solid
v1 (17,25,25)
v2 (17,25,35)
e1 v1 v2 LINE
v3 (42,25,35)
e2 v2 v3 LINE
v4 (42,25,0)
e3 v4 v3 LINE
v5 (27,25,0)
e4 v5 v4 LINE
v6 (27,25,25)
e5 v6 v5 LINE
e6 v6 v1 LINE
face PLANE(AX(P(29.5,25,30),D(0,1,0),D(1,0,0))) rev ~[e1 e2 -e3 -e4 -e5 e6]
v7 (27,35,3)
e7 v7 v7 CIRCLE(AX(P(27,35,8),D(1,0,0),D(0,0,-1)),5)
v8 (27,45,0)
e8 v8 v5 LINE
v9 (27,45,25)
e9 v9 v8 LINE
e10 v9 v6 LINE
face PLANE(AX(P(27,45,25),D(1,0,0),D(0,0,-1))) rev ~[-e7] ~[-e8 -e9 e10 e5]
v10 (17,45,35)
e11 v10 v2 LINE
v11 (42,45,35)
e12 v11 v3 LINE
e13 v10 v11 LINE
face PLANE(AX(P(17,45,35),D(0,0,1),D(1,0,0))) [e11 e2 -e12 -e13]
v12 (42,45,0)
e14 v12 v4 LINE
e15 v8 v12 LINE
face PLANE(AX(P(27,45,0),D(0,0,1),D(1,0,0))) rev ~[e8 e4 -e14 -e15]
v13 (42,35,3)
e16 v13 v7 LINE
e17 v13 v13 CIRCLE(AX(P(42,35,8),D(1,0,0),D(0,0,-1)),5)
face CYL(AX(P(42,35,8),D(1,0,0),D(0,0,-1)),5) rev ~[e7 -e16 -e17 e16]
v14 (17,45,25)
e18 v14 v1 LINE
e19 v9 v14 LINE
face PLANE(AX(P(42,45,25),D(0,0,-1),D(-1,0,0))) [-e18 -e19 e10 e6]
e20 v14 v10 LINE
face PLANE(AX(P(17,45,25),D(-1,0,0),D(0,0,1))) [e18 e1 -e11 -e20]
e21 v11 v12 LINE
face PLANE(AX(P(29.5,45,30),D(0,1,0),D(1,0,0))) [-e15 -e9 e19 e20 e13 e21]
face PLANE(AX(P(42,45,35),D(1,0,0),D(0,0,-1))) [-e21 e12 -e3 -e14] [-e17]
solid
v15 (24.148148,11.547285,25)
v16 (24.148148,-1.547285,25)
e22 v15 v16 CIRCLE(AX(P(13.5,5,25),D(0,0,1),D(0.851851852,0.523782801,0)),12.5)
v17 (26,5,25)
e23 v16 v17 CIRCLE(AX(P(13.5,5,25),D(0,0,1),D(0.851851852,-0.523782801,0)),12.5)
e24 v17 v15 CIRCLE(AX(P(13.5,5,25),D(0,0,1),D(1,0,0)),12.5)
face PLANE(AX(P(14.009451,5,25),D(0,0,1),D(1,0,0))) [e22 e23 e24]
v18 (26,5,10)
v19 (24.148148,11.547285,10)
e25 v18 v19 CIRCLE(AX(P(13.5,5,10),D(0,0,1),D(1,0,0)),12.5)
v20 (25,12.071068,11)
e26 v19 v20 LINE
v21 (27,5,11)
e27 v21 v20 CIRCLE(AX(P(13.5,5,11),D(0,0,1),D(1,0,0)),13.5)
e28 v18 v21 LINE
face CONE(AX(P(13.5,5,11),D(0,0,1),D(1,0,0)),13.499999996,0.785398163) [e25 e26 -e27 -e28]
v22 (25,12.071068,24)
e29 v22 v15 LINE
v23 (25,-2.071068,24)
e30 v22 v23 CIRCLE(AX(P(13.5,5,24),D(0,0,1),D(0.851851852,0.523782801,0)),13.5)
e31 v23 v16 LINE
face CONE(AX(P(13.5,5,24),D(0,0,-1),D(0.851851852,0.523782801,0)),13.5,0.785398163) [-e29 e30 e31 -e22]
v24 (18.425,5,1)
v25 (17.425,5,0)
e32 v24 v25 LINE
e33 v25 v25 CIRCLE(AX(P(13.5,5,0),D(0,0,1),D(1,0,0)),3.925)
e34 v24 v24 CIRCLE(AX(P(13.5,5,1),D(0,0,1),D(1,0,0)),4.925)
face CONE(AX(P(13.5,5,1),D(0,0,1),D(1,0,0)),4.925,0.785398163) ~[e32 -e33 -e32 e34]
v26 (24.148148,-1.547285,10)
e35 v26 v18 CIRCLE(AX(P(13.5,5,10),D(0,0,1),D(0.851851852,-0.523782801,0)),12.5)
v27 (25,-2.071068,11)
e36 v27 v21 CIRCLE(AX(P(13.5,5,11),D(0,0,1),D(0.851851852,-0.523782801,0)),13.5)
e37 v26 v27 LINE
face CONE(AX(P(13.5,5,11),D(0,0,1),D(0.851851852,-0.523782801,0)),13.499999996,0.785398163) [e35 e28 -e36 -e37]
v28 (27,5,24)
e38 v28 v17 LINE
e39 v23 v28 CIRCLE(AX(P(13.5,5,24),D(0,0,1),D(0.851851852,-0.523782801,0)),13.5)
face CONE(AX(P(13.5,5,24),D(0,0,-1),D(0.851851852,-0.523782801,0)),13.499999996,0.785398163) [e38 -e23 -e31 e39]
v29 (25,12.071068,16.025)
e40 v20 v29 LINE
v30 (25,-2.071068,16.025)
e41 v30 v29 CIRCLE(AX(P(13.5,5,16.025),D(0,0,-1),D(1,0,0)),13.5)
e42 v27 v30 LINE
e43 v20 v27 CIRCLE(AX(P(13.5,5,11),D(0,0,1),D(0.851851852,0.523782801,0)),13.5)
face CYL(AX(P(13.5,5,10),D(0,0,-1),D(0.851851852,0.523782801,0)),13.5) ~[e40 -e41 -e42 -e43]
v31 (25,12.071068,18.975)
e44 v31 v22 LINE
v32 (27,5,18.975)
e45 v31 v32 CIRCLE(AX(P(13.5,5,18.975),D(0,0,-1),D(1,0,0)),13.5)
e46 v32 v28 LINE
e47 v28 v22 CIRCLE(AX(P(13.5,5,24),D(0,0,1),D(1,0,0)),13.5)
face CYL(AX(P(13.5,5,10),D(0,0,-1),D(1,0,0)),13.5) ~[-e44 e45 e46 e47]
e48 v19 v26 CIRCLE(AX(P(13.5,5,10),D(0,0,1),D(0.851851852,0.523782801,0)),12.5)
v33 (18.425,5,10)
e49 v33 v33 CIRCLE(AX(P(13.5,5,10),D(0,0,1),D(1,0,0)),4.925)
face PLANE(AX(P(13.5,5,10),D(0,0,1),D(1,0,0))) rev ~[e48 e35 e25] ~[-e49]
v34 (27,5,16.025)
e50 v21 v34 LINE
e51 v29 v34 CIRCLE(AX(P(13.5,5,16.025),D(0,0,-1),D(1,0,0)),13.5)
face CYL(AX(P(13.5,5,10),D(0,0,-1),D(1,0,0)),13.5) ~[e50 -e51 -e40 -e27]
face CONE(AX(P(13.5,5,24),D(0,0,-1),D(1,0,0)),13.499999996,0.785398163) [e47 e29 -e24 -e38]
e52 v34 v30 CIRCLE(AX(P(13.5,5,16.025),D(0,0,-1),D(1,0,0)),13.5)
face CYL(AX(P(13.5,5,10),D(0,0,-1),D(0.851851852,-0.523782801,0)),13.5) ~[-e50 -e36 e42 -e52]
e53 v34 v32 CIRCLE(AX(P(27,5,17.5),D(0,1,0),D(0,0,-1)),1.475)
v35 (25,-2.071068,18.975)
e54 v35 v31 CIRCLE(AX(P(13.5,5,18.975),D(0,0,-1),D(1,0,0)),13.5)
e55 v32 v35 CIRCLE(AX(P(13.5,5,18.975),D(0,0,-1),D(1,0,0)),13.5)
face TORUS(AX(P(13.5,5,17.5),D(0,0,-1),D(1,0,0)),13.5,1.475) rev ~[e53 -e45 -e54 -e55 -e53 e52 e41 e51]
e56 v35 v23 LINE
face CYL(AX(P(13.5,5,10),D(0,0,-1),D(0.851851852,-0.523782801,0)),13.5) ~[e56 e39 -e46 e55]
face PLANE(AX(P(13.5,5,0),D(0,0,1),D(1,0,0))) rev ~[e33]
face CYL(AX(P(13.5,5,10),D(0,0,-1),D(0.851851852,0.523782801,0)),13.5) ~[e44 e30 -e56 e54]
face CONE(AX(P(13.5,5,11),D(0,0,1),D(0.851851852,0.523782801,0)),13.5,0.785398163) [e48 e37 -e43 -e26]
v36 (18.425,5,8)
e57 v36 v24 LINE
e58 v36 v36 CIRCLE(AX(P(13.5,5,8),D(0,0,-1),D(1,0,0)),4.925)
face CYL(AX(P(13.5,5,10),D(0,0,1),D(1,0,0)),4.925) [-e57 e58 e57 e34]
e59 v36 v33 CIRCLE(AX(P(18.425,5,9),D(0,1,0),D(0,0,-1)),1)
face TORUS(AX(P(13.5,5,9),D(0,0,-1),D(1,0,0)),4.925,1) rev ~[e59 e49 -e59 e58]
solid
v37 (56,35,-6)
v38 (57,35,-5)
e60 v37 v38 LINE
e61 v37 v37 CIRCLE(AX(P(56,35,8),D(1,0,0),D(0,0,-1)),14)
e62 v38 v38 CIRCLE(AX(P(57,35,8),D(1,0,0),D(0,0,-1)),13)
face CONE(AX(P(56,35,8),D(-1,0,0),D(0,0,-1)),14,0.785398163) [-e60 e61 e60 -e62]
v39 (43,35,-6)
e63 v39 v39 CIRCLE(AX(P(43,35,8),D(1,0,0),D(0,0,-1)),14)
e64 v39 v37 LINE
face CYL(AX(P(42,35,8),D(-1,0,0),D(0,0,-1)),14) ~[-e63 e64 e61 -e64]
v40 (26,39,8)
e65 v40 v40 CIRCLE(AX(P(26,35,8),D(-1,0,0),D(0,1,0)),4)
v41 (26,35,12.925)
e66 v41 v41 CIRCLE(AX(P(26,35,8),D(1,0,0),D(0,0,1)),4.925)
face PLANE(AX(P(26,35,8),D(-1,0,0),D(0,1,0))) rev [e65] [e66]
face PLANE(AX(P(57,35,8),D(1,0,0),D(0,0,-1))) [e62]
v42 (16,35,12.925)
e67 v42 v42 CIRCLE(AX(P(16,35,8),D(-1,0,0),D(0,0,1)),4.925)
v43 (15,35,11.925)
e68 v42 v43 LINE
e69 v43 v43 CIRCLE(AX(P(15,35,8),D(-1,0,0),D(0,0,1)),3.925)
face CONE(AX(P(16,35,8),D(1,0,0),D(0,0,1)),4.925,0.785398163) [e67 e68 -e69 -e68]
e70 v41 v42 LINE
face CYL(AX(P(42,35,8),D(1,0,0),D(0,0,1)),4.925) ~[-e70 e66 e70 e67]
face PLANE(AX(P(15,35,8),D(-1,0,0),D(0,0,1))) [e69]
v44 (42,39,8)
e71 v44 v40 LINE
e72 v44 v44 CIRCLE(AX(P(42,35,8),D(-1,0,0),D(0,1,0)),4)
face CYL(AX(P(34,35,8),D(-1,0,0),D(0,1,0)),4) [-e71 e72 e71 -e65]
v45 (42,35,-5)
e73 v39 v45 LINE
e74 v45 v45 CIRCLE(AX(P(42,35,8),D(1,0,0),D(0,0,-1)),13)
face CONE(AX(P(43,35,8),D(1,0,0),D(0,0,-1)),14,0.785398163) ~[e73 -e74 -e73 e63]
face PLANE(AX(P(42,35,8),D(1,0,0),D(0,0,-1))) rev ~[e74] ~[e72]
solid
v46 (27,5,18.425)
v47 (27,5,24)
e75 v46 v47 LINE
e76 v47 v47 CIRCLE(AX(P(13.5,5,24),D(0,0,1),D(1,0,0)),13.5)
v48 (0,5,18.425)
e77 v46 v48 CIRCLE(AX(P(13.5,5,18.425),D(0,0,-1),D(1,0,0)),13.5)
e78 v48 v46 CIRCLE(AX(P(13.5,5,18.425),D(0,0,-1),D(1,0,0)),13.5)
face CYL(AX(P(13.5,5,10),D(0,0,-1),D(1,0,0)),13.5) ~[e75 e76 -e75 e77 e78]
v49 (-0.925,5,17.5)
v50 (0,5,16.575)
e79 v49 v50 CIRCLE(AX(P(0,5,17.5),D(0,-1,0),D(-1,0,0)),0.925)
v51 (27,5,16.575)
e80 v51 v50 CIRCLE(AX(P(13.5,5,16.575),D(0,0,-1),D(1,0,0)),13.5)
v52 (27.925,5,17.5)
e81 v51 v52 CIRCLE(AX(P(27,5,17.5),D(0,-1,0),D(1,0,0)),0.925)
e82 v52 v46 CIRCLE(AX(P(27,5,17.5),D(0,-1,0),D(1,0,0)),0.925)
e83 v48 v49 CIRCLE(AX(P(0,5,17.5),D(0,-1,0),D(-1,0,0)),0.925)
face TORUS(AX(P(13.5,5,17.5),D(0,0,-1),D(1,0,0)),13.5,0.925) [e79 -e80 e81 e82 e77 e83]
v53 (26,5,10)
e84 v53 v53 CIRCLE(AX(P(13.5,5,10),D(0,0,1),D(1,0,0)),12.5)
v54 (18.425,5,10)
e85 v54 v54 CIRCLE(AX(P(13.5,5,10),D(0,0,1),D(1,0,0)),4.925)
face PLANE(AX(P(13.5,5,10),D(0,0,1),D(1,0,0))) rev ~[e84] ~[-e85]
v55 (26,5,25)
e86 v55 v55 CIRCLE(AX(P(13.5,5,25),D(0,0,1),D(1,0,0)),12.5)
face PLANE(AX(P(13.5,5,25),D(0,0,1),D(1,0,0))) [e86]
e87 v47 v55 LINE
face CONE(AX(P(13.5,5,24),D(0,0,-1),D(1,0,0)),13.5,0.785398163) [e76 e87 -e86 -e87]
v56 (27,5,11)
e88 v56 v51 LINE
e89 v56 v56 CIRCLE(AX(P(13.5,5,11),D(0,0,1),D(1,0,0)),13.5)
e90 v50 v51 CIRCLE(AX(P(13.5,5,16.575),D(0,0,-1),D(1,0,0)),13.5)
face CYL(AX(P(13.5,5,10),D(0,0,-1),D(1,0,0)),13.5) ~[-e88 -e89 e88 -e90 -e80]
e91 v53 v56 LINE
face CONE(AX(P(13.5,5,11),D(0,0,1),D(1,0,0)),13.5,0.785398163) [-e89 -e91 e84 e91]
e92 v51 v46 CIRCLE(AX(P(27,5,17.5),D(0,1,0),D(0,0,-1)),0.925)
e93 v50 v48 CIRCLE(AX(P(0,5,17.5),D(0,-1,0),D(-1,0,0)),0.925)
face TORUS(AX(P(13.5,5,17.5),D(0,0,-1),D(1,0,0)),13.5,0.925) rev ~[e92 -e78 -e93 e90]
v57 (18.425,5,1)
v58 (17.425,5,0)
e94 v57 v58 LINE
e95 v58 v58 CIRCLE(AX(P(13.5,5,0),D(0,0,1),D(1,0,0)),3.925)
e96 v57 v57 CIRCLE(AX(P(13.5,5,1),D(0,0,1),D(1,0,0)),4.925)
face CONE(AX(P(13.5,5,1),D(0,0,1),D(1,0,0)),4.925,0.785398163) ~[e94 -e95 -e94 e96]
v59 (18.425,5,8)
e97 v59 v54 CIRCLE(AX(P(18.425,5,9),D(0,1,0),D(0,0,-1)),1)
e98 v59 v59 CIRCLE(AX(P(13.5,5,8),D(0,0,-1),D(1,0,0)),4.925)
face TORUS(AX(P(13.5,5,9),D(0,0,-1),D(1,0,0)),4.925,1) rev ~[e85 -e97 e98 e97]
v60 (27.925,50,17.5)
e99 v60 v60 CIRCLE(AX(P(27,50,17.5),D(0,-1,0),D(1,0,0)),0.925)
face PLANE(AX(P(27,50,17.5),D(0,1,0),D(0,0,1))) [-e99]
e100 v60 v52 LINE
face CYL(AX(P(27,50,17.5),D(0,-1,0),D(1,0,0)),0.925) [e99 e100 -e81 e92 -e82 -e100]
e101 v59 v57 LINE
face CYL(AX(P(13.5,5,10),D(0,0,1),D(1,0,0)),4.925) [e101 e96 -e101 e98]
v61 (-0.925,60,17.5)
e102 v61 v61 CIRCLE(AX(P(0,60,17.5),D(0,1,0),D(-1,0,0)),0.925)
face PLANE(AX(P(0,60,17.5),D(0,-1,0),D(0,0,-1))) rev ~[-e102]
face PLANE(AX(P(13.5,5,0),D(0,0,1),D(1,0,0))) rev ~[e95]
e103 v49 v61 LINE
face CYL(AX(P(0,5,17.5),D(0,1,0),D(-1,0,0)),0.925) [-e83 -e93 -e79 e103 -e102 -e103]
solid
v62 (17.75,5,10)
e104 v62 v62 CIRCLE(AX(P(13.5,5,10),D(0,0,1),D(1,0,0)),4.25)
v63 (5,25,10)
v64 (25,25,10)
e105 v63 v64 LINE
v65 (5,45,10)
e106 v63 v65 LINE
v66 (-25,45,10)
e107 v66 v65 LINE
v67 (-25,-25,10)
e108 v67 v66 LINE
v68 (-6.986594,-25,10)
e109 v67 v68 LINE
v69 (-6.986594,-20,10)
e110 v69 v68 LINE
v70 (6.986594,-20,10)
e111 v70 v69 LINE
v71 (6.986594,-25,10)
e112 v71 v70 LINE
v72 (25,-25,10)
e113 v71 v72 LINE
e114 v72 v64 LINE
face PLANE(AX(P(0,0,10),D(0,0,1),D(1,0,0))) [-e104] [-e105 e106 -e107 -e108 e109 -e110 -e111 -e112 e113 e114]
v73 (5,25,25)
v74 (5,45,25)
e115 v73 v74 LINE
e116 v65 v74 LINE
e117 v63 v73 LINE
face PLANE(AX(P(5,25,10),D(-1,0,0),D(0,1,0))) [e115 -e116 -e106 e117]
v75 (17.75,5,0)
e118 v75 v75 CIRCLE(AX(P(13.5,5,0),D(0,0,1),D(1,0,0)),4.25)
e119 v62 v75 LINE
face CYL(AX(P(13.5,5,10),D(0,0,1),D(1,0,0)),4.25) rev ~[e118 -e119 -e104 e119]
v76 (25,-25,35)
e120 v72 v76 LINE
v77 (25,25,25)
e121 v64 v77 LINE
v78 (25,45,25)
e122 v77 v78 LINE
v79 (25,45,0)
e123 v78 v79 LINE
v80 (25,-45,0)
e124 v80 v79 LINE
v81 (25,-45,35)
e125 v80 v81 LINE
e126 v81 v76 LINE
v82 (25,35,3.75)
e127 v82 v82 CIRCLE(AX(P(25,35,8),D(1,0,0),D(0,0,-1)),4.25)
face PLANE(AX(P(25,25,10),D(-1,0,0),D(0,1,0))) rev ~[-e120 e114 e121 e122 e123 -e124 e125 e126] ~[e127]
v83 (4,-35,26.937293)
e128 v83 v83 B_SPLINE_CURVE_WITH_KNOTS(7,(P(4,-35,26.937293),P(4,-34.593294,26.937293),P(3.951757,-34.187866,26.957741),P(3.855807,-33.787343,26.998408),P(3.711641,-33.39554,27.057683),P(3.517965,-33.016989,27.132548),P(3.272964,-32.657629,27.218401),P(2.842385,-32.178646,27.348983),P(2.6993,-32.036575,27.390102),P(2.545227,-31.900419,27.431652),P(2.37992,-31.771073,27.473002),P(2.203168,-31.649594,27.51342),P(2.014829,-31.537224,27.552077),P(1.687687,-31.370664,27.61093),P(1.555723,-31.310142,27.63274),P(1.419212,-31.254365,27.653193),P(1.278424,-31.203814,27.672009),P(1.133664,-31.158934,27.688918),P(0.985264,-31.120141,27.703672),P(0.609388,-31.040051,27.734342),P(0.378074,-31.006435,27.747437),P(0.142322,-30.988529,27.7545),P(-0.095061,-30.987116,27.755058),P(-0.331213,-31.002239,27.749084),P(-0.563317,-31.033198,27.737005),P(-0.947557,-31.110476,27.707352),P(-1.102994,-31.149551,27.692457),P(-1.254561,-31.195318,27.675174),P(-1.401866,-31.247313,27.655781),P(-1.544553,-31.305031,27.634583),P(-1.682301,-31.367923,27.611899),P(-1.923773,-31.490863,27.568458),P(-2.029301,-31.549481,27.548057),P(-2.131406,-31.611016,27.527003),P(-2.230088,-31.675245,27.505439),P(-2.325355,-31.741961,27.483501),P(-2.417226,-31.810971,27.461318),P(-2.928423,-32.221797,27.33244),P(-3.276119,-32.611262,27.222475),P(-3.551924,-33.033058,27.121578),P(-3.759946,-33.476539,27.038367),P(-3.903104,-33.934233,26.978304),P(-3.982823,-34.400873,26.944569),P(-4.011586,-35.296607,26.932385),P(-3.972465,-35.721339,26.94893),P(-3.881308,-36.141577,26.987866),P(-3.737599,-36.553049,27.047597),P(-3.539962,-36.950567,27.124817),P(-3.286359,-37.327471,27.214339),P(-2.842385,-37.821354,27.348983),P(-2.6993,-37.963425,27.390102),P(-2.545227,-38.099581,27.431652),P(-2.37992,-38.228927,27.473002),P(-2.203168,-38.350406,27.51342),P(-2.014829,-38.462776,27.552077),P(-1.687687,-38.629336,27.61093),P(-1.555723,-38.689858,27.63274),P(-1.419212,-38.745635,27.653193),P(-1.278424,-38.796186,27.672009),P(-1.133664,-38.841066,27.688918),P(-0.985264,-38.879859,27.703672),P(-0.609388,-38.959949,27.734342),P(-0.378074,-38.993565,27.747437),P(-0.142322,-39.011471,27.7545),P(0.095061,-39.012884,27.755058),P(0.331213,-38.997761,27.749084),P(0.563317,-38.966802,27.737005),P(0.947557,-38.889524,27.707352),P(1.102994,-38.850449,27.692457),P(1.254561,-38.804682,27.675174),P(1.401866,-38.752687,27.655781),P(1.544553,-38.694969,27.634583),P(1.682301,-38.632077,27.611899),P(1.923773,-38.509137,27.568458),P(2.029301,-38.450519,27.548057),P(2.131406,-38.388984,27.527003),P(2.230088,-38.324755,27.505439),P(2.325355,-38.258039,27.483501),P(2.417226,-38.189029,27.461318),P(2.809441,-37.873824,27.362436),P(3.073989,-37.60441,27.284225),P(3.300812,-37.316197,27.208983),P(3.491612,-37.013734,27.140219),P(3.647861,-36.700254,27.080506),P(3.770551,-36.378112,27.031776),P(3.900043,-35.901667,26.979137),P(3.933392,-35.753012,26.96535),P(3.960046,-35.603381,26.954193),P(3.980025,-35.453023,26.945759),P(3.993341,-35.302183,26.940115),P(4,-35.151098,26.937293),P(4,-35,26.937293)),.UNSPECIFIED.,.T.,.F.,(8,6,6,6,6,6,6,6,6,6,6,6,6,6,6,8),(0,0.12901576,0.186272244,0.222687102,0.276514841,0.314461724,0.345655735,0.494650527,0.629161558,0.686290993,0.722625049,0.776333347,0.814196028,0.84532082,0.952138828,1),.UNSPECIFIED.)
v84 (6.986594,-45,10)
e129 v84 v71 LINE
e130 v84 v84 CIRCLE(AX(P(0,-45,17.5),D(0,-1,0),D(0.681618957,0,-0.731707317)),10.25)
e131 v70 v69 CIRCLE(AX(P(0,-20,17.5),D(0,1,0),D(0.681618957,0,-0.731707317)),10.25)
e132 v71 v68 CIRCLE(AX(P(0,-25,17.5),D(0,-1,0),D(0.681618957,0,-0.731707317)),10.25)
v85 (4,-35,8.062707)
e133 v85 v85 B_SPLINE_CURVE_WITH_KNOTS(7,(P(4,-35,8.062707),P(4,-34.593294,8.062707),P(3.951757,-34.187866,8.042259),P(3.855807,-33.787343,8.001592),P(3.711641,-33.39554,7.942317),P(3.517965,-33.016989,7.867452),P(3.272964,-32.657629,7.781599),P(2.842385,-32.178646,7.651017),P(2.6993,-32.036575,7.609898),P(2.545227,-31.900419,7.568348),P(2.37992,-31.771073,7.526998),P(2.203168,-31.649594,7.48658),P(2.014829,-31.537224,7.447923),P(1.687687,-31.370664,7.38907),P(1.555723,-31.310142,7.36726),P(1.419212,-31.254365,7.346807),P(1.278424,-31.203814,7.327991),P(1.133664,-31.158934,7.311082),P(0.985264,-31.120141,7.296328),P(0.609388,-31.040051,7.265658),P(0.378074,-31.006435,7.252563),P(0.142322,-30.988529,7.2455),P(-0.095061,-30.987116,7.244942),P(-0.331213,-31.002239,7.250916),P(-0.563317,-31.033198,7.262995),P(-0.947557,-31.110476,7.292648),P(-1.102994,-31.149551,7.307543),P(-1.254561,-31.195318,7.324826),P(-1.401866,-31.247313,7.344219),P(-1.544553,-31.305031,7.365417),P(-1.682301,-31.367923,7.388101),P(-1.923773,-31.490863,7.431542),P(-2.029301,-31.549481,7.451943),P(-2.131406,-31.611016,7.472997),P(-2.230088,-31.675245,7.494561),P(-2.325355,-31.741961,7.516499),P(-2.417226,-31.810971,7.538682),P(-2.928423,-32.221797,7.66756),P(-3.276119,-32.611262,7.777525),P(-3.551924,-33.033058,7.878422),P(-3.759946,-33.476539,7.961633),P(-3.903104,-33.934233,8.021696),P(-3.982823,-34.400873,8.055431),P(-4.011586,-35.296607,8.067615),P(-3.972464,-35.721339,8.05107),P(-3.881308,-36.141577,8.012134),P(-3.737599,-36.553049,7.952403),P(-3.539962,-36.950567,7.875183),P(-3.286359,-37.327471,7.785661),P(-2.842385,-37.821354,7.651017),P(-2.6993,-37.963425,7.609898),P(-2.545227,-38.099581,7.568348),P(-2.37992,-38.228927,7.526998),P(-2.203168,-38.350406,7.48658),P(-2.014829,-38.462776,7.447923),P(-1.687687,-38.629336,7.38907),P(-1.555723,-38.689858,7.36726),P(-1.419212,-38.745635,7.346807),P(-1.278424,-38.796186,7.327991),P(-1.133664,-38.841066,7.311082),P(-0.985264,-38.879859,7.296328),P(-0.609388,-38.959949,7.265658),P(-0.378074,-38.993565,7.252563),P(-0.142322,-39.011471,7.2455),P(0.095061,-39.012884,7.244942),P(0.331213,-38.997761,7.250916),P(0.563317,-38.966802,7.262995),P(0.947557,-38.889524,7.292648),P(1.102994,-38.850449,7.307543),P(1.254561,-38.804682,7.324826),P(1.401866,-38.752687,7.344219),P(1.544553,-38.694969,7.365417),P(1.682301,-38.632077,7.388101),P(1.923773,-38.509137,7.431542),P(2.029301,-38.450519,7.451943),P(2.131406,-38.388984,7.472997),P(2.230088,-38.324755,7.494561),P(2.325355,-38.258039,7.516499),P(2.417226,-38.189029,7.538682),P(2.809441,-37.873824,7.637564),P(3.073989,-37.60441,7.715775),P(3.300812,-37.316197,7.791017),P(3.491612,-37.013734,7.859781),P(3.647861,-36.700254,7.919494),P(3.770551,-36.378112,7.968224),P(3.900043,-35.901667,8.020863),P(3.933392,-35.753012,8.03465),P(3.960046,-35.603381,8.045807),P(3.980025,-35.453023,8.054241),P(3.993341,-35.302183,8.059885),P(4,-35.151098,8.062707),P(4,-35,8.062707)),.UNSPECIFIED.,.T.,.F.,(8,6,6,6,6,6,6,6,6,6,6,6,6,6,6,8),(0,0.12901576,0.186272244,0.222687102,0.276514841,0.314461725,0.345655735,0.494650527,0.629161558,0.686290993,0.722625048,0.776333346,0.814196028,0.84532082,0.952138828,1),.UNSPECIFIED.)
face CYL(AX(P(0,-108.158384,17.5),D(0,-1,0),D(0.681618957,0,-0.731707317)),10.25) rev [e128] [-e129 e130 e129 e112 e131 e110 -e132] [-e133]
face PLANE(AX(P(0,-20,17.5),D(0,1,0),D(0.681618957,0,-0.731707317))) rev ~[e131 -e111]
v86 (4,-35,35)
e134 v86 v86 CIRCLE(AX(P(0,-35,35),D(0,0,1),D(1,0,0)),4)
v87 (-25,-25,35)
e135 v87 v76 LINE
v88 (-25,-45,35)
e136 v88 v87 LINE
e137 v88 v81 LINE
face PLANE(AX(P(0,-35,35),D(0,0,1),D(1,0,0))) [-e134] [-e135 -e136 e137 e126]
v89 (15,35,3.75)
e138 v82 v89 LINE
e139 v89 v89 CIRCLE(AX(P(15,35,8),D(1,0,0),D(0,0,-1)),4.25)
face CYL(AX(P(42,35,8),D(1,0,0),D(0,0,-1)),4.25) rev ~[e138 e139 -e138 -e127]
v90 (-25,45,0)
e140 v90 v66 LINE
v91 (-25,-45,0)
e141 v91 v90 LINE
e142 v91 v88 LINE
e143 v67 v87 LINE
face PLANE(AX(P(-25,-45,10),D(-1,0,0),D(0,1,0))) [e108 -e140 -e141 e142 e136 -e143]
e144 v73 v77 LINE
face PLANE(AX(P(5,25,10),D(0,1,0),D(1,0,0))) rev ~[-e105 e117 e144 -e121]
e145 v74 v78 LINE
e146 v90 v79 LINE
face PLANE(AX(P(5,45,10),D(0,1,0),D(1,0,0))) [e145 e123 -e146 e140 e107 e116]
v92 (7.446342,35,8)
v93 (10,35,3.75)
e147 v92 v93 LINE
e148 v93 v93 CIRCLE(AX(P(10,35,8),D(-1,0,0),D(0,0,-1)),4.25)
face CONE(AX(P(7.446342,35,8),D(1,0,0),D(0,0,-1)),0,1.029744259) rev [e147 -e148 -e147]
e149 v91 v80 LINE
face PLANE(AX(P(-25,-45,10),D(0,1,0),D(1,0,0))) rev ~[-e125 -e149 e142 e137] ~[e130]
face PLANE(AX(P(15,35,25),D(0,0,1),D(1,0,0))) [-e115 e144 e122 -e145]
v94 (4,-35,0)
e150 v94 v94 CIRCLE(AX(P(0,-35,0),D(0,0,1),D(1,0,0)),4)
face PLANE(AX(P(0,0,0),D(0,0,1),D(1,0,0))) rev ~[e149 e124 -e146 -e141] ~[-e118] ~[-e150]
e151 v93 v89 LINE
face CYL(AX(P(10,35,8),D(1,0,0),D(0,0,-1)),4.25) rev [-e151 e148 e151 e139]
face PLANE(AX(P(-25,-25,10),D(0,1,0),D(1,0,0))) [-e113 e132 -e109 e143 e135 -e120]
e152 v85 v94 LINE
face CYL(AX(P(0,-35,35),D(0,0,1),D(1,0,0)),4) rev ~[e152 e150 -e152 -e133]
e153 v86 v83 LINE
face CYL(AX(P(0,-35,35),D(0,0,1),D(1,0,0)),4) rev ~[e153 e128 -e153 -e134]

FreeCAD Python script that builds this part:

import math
import FreeCAD as App
import Part
import Sketcher

V = App.Vector
Q = App.Units.Quantity


def edges_at(feature, points):
    """Names of the edges that pass closest to the given points."""
    edges = feature.Shape.Edges
    near = lambda p: min(range(len(edges)), key=lambda i: edges[i].distToShape(Part.Vertex(*p))[0])
    return sorted({f"Edge{near(p) + 1}" for p in points})


def add_polygon(sketch, points):
    """Adds a closed chain of lines whose ends are joined by coincident constraints."""
    first, n = sketch.GeometryCount, len(points)
    for a, b in zip(points, points[1:] + points[:1]):
        sketch.addGeometry(Part.LineSegment(App.Vector(*a, 0), App.Vector(*b, 0)), False)
    for i in range(n):
        sketch.addConstraint(Sketcher.Constraint("Coincident", first + i, 2, first + (i + 1) % n, 1))

doc = App.newDocument("Part")
body = doc.addObject("PartDesign::Body", "Body")

# Sketch on XY plane
sketch1 = body.newObject("Sketcher::SketchObject", "Sketch")
sketch1.AttachmentSupport = (doc.getObject("XY_Plane"), [""])
sketch1.MapMode = "FlatFace"
add_polygon(sketch1, [(-25, 45), (-25, -45), (25, -45), (25, 45)])  # lines 0-3
sketch1.addConstraint([
    Sketcher.Constraint("Vertical", 0),
    Sketcher.Constraint("Horizontal", 1),
    Sketcher.Constraint("Vertical", 2),
    Sketcher.Constraint("Horizontal", 3),
    Sketcher.Constraint("Symmetric", 0, 2, 2, 2, -1, 1),
    Sketcher.Constraint("DistanceX", 1, 1, 1, 2, Q("50 mm")),
    Sketcher.Constraint("DistanceY", 0, 2, 0, 1, Q("90 mm")),
])
pad1 = body.newObject("PartDesign::Pad", "Pad")
pad1.Profile = sketch1
pad1.Length = 10

# Sketch on XY plane
sketch2 = body.newObject("Sketcher::SketchObject", "Sketch001")
sketch2.AttachmentSupport = (doc.getObject("XY_Plane"), [""])
sketch2.MapMode = "FlatFace"
sketch2.AttachmentOffset = App.Placement(V(0, 0, 10), App.Rotation())
add_polygon(sketch2, [(-25, -25), (-25, -45), (25, -45), (25, -25)])  # lines 0-3
sketch2.addConstraint([
    Sketcher.Constraint("Vertical", 0),
    Sketcher.Constraint("Horizontal", 1),
    Sketcher.Constraint("Vertical", 2),
    Sketcher.Constraint("Horizontal", 3),
    Sketcher.Constraint("DistanceX", 1, 1, 1, 2, Q("50 mm")),
    Sketcher.Constraint("DistanceY", 0, 2, 0, 1, Q("20 mm")),
    Sketcher.Constraint("DistanceX", 0, 2, -1, 1, Q("25 mm")),
    Sketcher.Constraint("DistanceY", 0, 2, -1, 1, Q("45 mm")),
])
pad2 = body.newObject("PartDesign::Pad", "Pad001")
pad2.Profile = sketch2
pad2.Length = 25

# Sketch on XZ plane
sketch3 = body.newObject("Sketcher::SketchObject", "Sketch002")
sketch3.AttachmentSupport = (doc.getObject("XZ_Plane"), [""])
sketch3.MapMode = "FlatFace"
sketch3.AttachmentOffset = App.Placement(V(0, 0, 25), App.Rotation())
sketch3.addGeometry(Part.Circle(V(0, 17.5, 0), V(0, 0, 1), 10.25), False)
sketch3.addConstraint([
    Sketcher.Constraint("PointOnObject", 0, 3, -2),
    Sketcher.Constraint("Diameter", 0, Q("20.5 mm")),
    Sketcher.Constraint("DistanceY", -1, 1, 0, 3, Q("17.5 mm")),
])
pocket1 = body.newObject("PartDesign::Pocket", "Pocket")
pocket1.Profile = sketch3
pocket1.Type = "TwoLengths"
pocket1.Length = 5
pocket1.Length2 = 83.158384

# Sketch on XY plane
sketch4 = body.newObject("Sketcher::SketchObject", "Sketch003")
sketch4.AttachmentSupport = (doc.getObject("XY_Plane"), [""])
sketch4.MapMode = "FlatFace"
sketch4.AttachmentOffset = App.Placement(V(0, 0, 35), App.Rotation())
sketch4.addGeometry(Part.Circle(V(0, -35, 0), V(0, 0, 1), 4), False)
sketch4.addConstraint([
    Sketcher.Constraint("PointOnObject", 0, 3, -2),
    Sketcher.Constraint("Diameter", 0, Q("8 mm")),
    Sketcher.Constraint("DistanceY", 0, 3, -1, 1, Q("35 mm")),
])
pocket2 = body.newObject("PartDesign::Pocket", "Pocket001")
pocket2.Profile = sketch4
pocket2.Type = "ThroughAll"

# Sketch on XY plane
sketch5 = body.newObject("Sketcher::SketchObject", "Sketch004")
sketch5.AttachmentSupport = (doc.getObject("XY_Plane"), [""])
sketch5.MapMode = "FlatFace"
sketch5.AttachmentOffset = App.Placement(V(0, 0, 10), App.Rotation())
sketch5.addGeometry(Part.Circle(V(13.5, 5, 0), V(0, 0, 1), 4.25), False)
sketch5.addConstraint([
    Sketcher.Constraint("Diameter", 0, Q("8.5 mm")),
    Sketcher.Constraint("DistanceY", -1, 1, 0, 3, Q("5 mm")),
    Sketcher.Constraint("DistanceX", -1, 1, 0, 3, Q("13.5 mm")),
])
pocket3 = body.newObject("PartDesign::Pocket", "Pocket002")
pocket3.Profile = sketch5
pocket3.Length = 30

# Sketch on XY plane
sketch6 = body.newObject("Sketcher::SketchObject", "Sketch005")
sketch6.AttachmentSupport = (doc.getObject("XY_Plane"), [""])
sketch6.MapMode = "FlatFace"
sketch6.AttachmentOffset = App.Placement(V(0, 0, 10), App.Rotation())
add_polygon(sketch6, [(5, 45), (5, 25), (25, 25), (25, 45)])  # lines 0-3
sketch6.addConstraint([
    Sketcher.Constraint("Vertical", 0),
    Sketcher.Constraint("Horizontal", 1),
    Sketcher.Constraint("Vertical", 2),
    Sketcher.Constraint("Horizontal", 3),
    Sketcher.Constraint("Equal", 3, 0),
    Sketcher.Constraint("DistanceX", 1, 1, 1, 2, Q("20 mm")),
    Sketcher.Constraint("DistanceX", -1, 1, 0, 2, Q("5 mm")),
    Sketcher.Constraint("DistanceY", -1, 1, 0, 2, Q("25 mm")),
])
pad3 = body.newObject("PartDesign::Pad", "Pad002")
pad3.Profile = sketch6
pad3.Length = 15
body2 = doc.addObject("PartDesign::Body", "Body001")

# Sketch on XZ plane
sketch7 = body2.newObject("Sketcher::SketchObject", "Sketch006")
sketch7.AttachmentSupport = (doc.getObject("XZ_Plane001"), [""])
sketch7.MapMode = "FlatFace"
sketch7.AttachmentOffset = App.Placement(V(0, 0, -45), App.Rotation())
add_polygon(sketch7, [(27, 0), (27, 25), (42, 25), (42, 0)])  # lines 0-3
sketch7.addConstraint([
    Sketcher.Constraint("Vertical", 0),
    Sketcher.Constraint("Horizontal", 1),
    Sketcher.Constraint("Vertical", 2),
    Sketcher.Constraint("Horizontal", 3),
    Sketcher.Constraint("PointOnObject", 2, 2, -1),
    Sketcher.Constraint("DistanceX", 1, 1, 1, 2, Q("15 mm")),
    Sketcher.Constraint("DistanceY", 0, 1, 0, 2, Q("25 mm")),
    Sketcher.Constraint("DistanceX", -1, 1, 0, 2, Q("27 mm")),
])
pad4 = body2.newObject("PartDesign::Pad", "Pad003")
pad4.Profile = sketch7
pad4.Length = 20
body3 = doc.addObject("PartDesign::Body", "Body002")

# Sketch on YZ plane
sketch8 = body3.newObject("Sketcher::SketchObject", "Sketch007")
sketch8.AttachmentSupport = (doc.getObject("YZ_Plane002"), [""])
sketch8.MapMode = "FlatFace"
sketch8.AttachmentOffset = App.Placement(V(0, 0, 42), App.Rotation())
sketch8.addGeometry(Part.Circle(V(35, 8, 0), V(0, 0, 1), 4.25), False)
sketch8.addConstraint([
    Sketcher.Constraint("Diameter", 0, Q("8.5 mm")),
    Sketcher.Constraint("DistanceX", -1, 1, 0, 3, Q("35 mm")),
    Sketcher.Constraint("DistanceY", -1, 1, 0, 3, Q("8 mm")),
])
pad5 = body3.newObject("PartDesign::Pad", "Pad004")
pad5.Profile = sketch8
pad5.Length = 27
pad5.Reversed = True
doc.recompute()

body4 = doc.addObject("PartDesign::Body", "Body003")
body4.BaseFeature = body3
boolean = body.newObject("PartDesign::Boolean", "Boolean")
boolean.Type = "Cut"
boolean.addObjects([body4])
doc.recompute()

# Sketch on XZ plane
sketch9 = body.newObject("Sketcher::SketchObject", "Sketch008")
sketch9.AttachmentSupport = (doc.getObject("XZ_Plane"), [""])
sketch9.MapMode = "FlatFace"
sketch9.AttachmentOffset = App.Placement(V(0, 0, -35), App.Rotation())
add_polygon(sketch9, [(7.446342, 8), (15, 8), (15, 3.75), (10, 3.75)])  # lines 0-3
sketch9.addGeometry(Part.LineSegment(V(15, 8, 0), V(7.446342, 8, 0)), True)  # axis
sketch9.addConstraint([
    Sketcher.Constraint("Horizontal", 0),
    Sketcher.Constraint("Vertical", 1),
    Sketcher.Constraint("Horizontal", 2),
    Sketcher.Constraint("Horizontal", 4),
    Sketcher.Constraint("Coincident", 4, 1, 0, 2),
    Sketcher.Constraint("Equal", 0, 4),
    Sketcher.Constraint("DistanceX", 2, 2, 2, 1, Q("5 mm")),
    Sketcher.Constraint("Angle", 3, Q("121 deg")),
    Sketcher.Constraint("DistanceX", -1, 1, 0, 2, Q("15 mm")),
    Sketcher.Constraint("DistanceY", -1, 1, 0, 2, Q("8 mm")),
    Sketcher.Constraint("DistanceY", 1, 2, 1, 1, Q("4.25 mm")),
])
groove = body.newObject("PartDesign::Groove", "Groove")
groove.Profile = sketch9
groove.ReferenceAxis = (sketch9, ["Axis0"])
groove.Angle = 360
doc.recompute()

boolean2 = body2.newObject("PartDesign::Boolean", "Boolean001")
boolean2.Type = "Cut"
boolean2.addObjects([body3])

# Sketch on YZ plane
sketch10 = body2.newObject("Sketcher::SketchObject", "Sketch009")
sketch10.AttachmentSupport = (doc.getObject("YZ_Plane001"), [""])
sketch10.MapMode = "FlatFace"
sketch10.AttachmentOffset = App.Placement(V(0, 0, 42), App.Rotation())
sketch10.addGeometry([
    Part.Circle(V(35, 8, 0), V(0, 0, 1), 5),
    Part.Circle(V(35, 8, 0), V(0, 0, 1), 4.25),
], False)
sketch10.addConstraint([
    Sketcher.Constraint("Coincident", 1, 3, 0, 3),
    Sketcher.Constraint("Diameter", 0, Q("10 mm")),
    Sketcher.Constraint("Diameter", 1, Q("8.5 mm")),
    Sketcher.Constraint("DistanceX", -1, 1, 0, 3, Q("35 mm")),
    Sketcher.Constraint("DistanceY", -1, 1, 0, 3, Q("8 mm")),
])
pocket4 = body2.newObject("PartDesign::Pocket", "Pocket003")
pocket4.Profile = sketch10
pocket4.Length = 15

# Sketch on XZ plane
sketch11 = body2.newObject("Sketcher::SketchObject", "Sketch010")
sketch11.AttachmentSupport = (doc.getObject("XZ_Plane001"), [""])
sketch11.MapMode = "FlatFace"
sketch11.AttachmentOffset = App.Placement(V(0, 0, -45), App.Rotation())
add_polygon(sketch11, [(17, 25), (17, 35), (42, 35), (42, 25)])  # lines 0-3
sketch11.addConstraint([
    Sketcher.Constraint("Vertical", 0),
    Sketcher.Constraint("Horizontal", 1),
    Sketcher.Constraint("Vertical", 2),
    Sketcher.Constraint("Horizontal", 3),
    Sketcher.Constraint("DistanceX", 1, 1, 1, 2, Q("25 mm")),
    Sketcher.Constraint("DistanceY", 0, 1, 0, 2, Q("10 mm")),
    Sketcher.Constraint("DistanceX", -1, 1, 0, 2, Q("17 mm")),
    Sketcher.Constraint("DistanceY", -1, 1, 0, 2, Q("35 mm")),
])
pad6 = body2.newObject("PartDesign::Pad", "Pad005")
pad6.Profile = sketch11
pad6.Length = 20
body5 = doc.addObject("PartDesign::Body", "Body004")

# Sketch on XY plane
sketch12 = body5.newObject("Sketcher::SketchObject", "Sketch011")
sketch12.AttachmentSupport = (doc.getObject("XY_Plane004"), [""])
sketch12.MapMode = "FlatFace"
sketch12.AttachmentOffset = App.Placement(V(0, 0, 10), App.Rotation())
sketch12.addGeometry(Part.Circle(V(13.5, 5, 0), V(0, 0, 1), 13.5), False)
sketch12.addConstraint([
    Sketcher.Constraint("Diameter", 0, Q("27 mm")),
    Sketcher.Constraint("DistanceY", -1, 1, 0, 3, Q("5 mm")),
    Sketcher.Constraint("DistanceX", -1, 1, 0, 3, Q("13.5 mm")),
])
pad7 = body5.newObject("PartDesign::Pad", "Pad006")
pad7.Profile = sketch12
pad7.Length = 15

# Sketch on XY plane
sketch13 = body5.newObject("Sketcher::SketchObject", "Sketch012")
sketch13.AttachmentSupport = (doc.getObject("XY_Plane004"), [""])
sketch13.MapMode = "FlatFace"
sketch13.AttachmentOffset = App.Placement(V(0, 0, 10), App.Rotation())
sketch13.addGeometry(Part.Circle(V(13.5, 5, 0), V(0, 0, 1), 4.925), False)
sketch13.addConstraint([
    Sketcher.Constraint("Diameter", 0, Q("9.85 mm")),
    Sketcher.Constraint("DistanceY", -1, 1, 0, 3, Q("5 mm")),
    Sketcher.Constraint("DistanceX", -1, 1, 0, 3, Q("13.5 mm")),
])
pad8 = body5.newObject("PartDesign::Pad", "Pad007")
pad8.Profile = sketch13
pad8.Length = 10
pad8.Reversed = True

# Sketch on XZ plane
sketch14 = body5.newObject("Sketcher::SketchObject", "Sketch013")
sketch14.AttachmentSupport = (doc.getObject("XZ_Plane004"), [""])
sketch14.MapMode = "FlatFace"
sketch14.AttachmentOffset = App.Placement(V(0, 0, -5), App.Rotation())
sketch14.addGeometry([
    Part.LineSegment(V(0, 16.575, 0), V(0, 18.425, 0)),
    Part.ArcOfCircle(Part.Circle(V(0, 17.5, 0), V(0, 0, 1), 0.925), math.radians(-90), math.radians(90)),
], False)
sketch14.addGeometry(Part.LineSegment(V(13.5, 18.425, 0), V(13.5, 16.575, 0)), True)  # axis
sketch14.addConstraint([
    Sketcher.Constraint("Coincident", 0, 1, 1, 1),
    Sketcher.Constraint("Coincident", 1, 2, 0, 2),
    Sketcher.Constraint("Vertical", 0),
    Sketcher.Constraint("Vertical", 2),
    Sketcher.Constraint("PointOnObject", 1, 3, -2),
    Sketcher.Constraint("PointOnObject", 0, 1, -2),
    Sketcher.Constraint("Horizontal", 1, 2, 2, 1),
    Sketcher.Constraint("Horizontal", 0, 1, 2, 2),
    Sketcher.Constraint("Radius", 1, Q("0.925 mm")),
    Sketcher.Constraint("DistanceY", -1, 1, 1, 3, Q("17.5 mm")),
    Sketcher.Constraint("DistanceX", -1, 1, 2, 1, Q("13.5 mm")),
])
groove2 = body5.newObject("PartDesign::Groove", "Groove001")
groove2.Profile = sketch14
groove2.ReferenceAxis = (sketch14, ["Axis0"])
groove2.Angle = 360

# Sketch on XZ plane
sketch15 = body5.newObject("Sketcher::SketchObject", "Sketch014")
sketch15.AttachmentSupport = (doc.getObject("XZ_Plane004"), [""])
sketch15.MapMode = "FlatFace"
sketch15.AttachmentOffset = App.Placement(V(0, 0, -5), App.Rotation())
sketch15.addGeometry([
    Part.LineSegment(V(8.575, 8, 0), V(8.575, 10, 0)),
    Part.ArcOfCircle(Part.Circle(V(8.575, 9, 0), V(0, 0, 1), 1), math.radians(-90), math.radians(90)),
], False)
sketch15.addGeometry(Part.LineSegment(V(13.5, 10, 0), V(13.5, 8, 0)), True)  # axis
sketch15.addConstraint([
    Sketcher.Constraint("Coincident", 0, 1, 1, 1),
    Sketcher.Constraint("Coincident", 1, 2, 0, 2),
    Sketcher.Constraint("Vertical", 0),
    Sketcher.Constraint("Vertical", 2),
    Sketcher.Constraint("Horizontal", 1, 2, 2, 1),
    Sketcher.Constraint("Horizontal", 0, 1, 2, 2),
    Sketcher.Constraint("Vertical", 1, 3, 0, 1),
    Sketcher.Constraint("Radius", 1, Q("1 mm")),
    Sketcher.Constraint("DistanceY", -1, 1, 1, 3, Q("9 mm")),
    Sketcher.Constraint("DistanceX", -1, 1, 2, 1, Q("13.5 mm")),
    Sketcher.Constraint("DistanceX", -1, 1, 1, 3, Q("8.575 mm")),
])
groove3 = body5.newObject("PartDesign::Groove", "Groove002")
groove3.Profile = sketch15
groove3.ReferenceAxis = (sketch15, ["Axis0"])
groove3.Angle = 360
doc.recompute()

chamfer = body5.newObject("PartDesign::Chamfer", "Chamfer")
chamfer.Base = (groove3, edges_at(groove3, [(0, 5, 10), (8.575, 5, 0), (0, 5, 25)]))
chamfer.Size = 1

# Sketch on XZ plane
sketch16 = body5.newObject("Sketcher::SketchObject", "Sketch015")
sketch16.AttachmentSupport = (doc.getObject("XZ_Plane004"), [""])
sketch16.MapMode = "FlatFace"
sketch16.AttachmentOffset = App.Placement(V(0, 0, -50), App.Rotation())
sketch16.addGeometry(Part.Circle(V(27, 17.5, 0), V(0, 0, 1), 0.925), False)
sketch16.addConstraint([
    Sketcher.Constraint("Diameter", 0, Q("1.85 mm")),
    Sketcher.Constraint("DistanceX", -1, 1, 0, 3, Q("27 mm")),
    Sketcher.Constraint("DistanceY", -1, 1, 0, 3, Q("17.5 mm")),
])

# Sketch on XY plane
sketch17 = body5.newObject("Sketcher::SketchObject", "Sketch016")
sketch17.AttachmentSupport = (doc.getObject("XY_Plane004"), [""])
sketch17.MapMode = "FlatFace"
sketch17.AttachmentOffset = App.Placement(V(0, 0, 17.5), App.Rotation())
sketch17.addGeometry([
    Part.LineSegment(V(27, 50, 0), V(27, 5, 0)),
    Part.ArcOfCircle(Part.Circle(V(13.5, 5, 0), V(0, 0, 1), 13.5), math.radians(180), math.radians(360)),
    Part.LineSegment(V(0, 5, 0), V(0, 60, 0)),
], False)
sketch17.addConstraint([
    Sketcher.Constraint("Tangent", 0, 2, 1, 2),
    Sketcher.Constraint("Tangent", 1, 1, 2, 1),
    Sketcher.Constraint("Vertical", 0),
    Sketcher.Constraint("Vertical", 2),
    Sketcher.Constraint("PointOnObject", 1, 1, -2),
    Sketcher.Constraint("Radius", 1, Q("13.5 mm")),
    Sketcher.Constraint("DistanceY", 0, 2, 0, 1, Q("45 mm")),
    Sketcher.Constraint("DistanceY", 2, 1, 2, 2, Q("55 mm")),
    Sketcher.Constraint("DistanceY", -1, 1, 1, 3, Q("5 mm")),
])
doc.recompute()

additivepipe = body5.newObject("PartDesign::AdditivePipe", "AdditivePipe")
additivepipe.Profile = sketch16
additivepipe.Spine = (sketch17, ["Edge1", "Edge2", "Edge3"])
body6 = doc.addObject("PartDesign::Body", "Body005")

# Sketch on XY plane
sketch18 = body6.newObject("Sketcher::SketchObject", "Sketch017")
sketch18.AttachmentSupport = (doc.getObject("XY_Plane005"), [""])
sketch18.MapMode = "FlatFace"
sketch18.AttachmentOffset = App.Placement(V(0, 0, 10), App.Rotation())
sketch18.addGeometry([
    Part.ArcOfCircle(Part.Circle(V(13.5, 5, 0), V(0, 0, 1), 13.5), math.radians(-31.586338), math.radians(0)),
    Part.ArcOfCircle(Part.Circle(V(13.5, 5, 0), V(0, 0, 1), 13.5), math.radians(0), math.radians(31.586338)),
    Part.ArcOfCircle(Part.Circle(V(13.5, 5, 0), V(0, 0, 1), 13.5), math.radians(31.586338), math.radians(328.413662)),
], False)
sketch18.addConstraint([
    Sketcher.Constraint("Tangent", 0, 2, 1, 1),
    Sketcher.Constraint("Tangent", 1, 2, 2, 1),
    Sketcher.Constraint("Tangent", 2, 2, 0, 1),
    Sketcher.Constraint("Horizontal", 2, 3, 0, 2),
    Sketcher.Constraint("Vertical", 1, 2, 2, 2),
    Sketcher.Constraint("Radius", 0, Q("13.5 mm")),
    Sketcher.Constraint("DistanceY", -1, 1, 0, 3, Q("5 mm")),
    Sketcher.Constraint("DistanceX", -1, 1, 0, 2, Q("27 mm")),
    Sketcher.Constraint("DistanceX", -1, 1, 1, 2, Q("25 mm")),
])
pad9 = body6.newObject("PartDesign::Pad", "Pad008")
pad9.Profile = sketch18
pad9.Length = 15

# Sketch on XY plane
sketch19 = body6.newObject("Sketcher::SketchObject", "Sketch018")
sketch19.AttachmentSupport = (doc.getObject("XY_Plane005"), [""])
sketch19.MapMode = "FlatFace"
sketch19.AttachmentOffset = App.Placement(V(0, 0, 10), App.Rotation())
sketch19.addGeometry(Part.Circle(V(13.5, 5, 0), V(0, 0, 1), 4.925), False)
sketch19.addConstraint([
    Sketcher.Constraint("Diameter", 0, Q("9.85 mm")),
    Sketcher.Constraint("DistanceY", -1, 1, 0, 3, Q("5 mm")),
    Sketcher.Constraint("DistanceX", -1, 1, 0, 3, Q("13.5 mm")),
])
pad10 = body6.newObject("PartDesign::Pad", "Pad009")
pad10.Profile = sketch19
pad10.Length = 10
pad10.Reversed = True

# Sketch on XZ plane
sketch20 = body6.newObject("Sketcher::SketchObject", "Sketch019")
sketch20.AttachmentSupport = (doc.getObject("XZ_Plane005"), [""])
sketch20.MapMode = "FlatFace"
sketch20.AttachmentOffset = App.Placement(V(0, 0, -5), App.Rotation())
sketch20.addGeometry([
    Part.LineSegment(V(0, 16.025, 0), V(0, 18.975, 0)),
    Part.ArcOfCircle(Part.Circle(V(0, 17.5, 0), V(0, 0, 1), 1.475), math.radians(-90), math.radians(90)),
], False)
sketch20.addGeometry(Part.LineSegment(V(13.5, 18.975, 0), V(13.5, 16.025, 0)), True)  # axis
sketch20.addConstraint([
    Sketcher.Constraint("Coincident", 0, 1, 1, 1),
    Sketcher.Constraint("Coincident", 1, 2, 0, 2),
    Sketcher.Constraint("Vertical", 0),
    Sketcher.Constraint("Vertical", 2),
    Sketcher.Constraint("PointOnObject", 1, 3, -2),
    Sketcher.Constraint("PointOnObject", 0, 1, -2),
    Sketcher.Constraint("Horizontal", 1, 2, 2, 1),
    Sketcher.Constraint("Horizontal", 0, 1, 2, 2),
    Sketcher.Constraint("Radius", 1, Q("1.475 mm")),
    Sketcher.Constraint("DistanceY", -1, 1, 1, 3, Q("17.5 mm")),
    Sketcher.Constraint("DistanceX", -1, 1, 2, 1, Q("13.5 mm")),
])
groove4 = body6.newObject("PartDesign::Groove", "Groove003")
groove4.Profile = sketch20
groove4.ReferenceAxis = (sketch20, ["Axis0"])
groove4.Angle = 360
doc.recompute()

chamfer2 = body6.newObject("PartDesign::Chamfer", "Chamfer001")
chamfer2.Base = (groove4, edges_at(groove4, [(0, 5, 25), (8.575, 5, 0), (0, 5, 10)]))
chamfer2.Size = 1

# Sketch on XZ plane
sketch21 = body6.newObject("Sketcher::SketchObject", "Sketch020")
sketch21.AttachmentSupport = (doc.getObject("XZ_Plane005"), [""])
sketch21.MapMode = "FlatFace"
sketch21.AttachmentOffset = App.Placement(V(0, 0, -5), App.Rotation())
sketch21.addGeometry([
    Part.LineSegment(V(8.575, 8, 0), V(8.575, 10, 0)),
    Part.ArcOfCircle(Part.Circle(V(8.575, 9, 0), V(0, 0, 1), 1), math.radians(-90), math.radians(90)),
], False)
sketch21.addGeometry(Part.LineSegment(V(13.5, 10, 0), V(13.5, 8, 0)), True)  # axis
sketch21.addConstraint([
    Sketcher.Constraint("Coincident", 0, 1, 1, 1),
    Sketcher.Constraint("Coincident", 1, 2, 0, 2),
    Sketcher.Constraint("Vertical", 0),
    Sketcher.Constraint("Vertical", 2),
    Sketcher.Constraint("Horizontal", 1, 2, 2, 1),
    Sketcher.Constraint("Horizontal", 0, 1, 2, 2),
    Sketcher.Constraint("Vertical", 1, 3, 0, 1),
    Sketcher.Constraint("Radius", 1, Q("1 mm")),
    Sketcher.Constraint("DistanceY", -1, 1, 1, 3, Q("9 mm")),
    Sketcher.Constraint("DistanceX", -1, 1, 2, 1, Q("13.5 mm")),
    Sketcher.Constraint("DistanceX", -1, 1, 1, 3, Q("8.575 mm")),
])
groove5 = body6.newObject("PartDesign::Groove", "Groove004")
groove5.Profile = sketch21
groove5.ReferenceAxis = (sketch21, ["Axis0"])
groove5.Angle = 360
body7 = doc.addObject("PartDesign::Body", "Body006")

# Sketch on YZ plane
sketch22 = body7.newObject("Sketcher::SketchObject", "Sketch021")
sketch22.AttachmentSupport = (doc.getObject("YZ_Plane006"), [""])
sketch22.MapMode = "FlatFace"
sketch22.AttachmentOffset = App.Placement(V(0, 0, 42), App.Rotation())
sketch22.addGeometry(Part.Circle(V(35, 8, 0), V(0, 0, 1), 14), False)
sketch22.addConstraint([
    Sketcher.Constraint("Diameter", 0, Q("28 mm")),
    Sketcher.Constraint("DistanceX", -1, 1, 0, 3, Q("35 mm")),
    Sketcher.Constraint("DistanceY", -1, 1, 0, 3, Q("8 mm")),
])
pad11 = body7.newObject("PartDesign::Pad", "Pad010")
pad11.Profile = sketch22
pad11.Length = 15

# Sketch on YZ plane
sketch23 = body7.newObject("Sketcher::SketchObject", "Sketch022")
sketch23.AttachmentSupport = (doc.getObject("YZ_Plane006"), [""])
sketch23.MapMode = "FlatFace"
sketch23.AttachmentOffset = App.Placement(V(0, 0, 42), App.Rotation())
sketch23.addGeometry(Part.Circle(V(35, 8, 0), V(0, 0, 1), 4.925), False)
sketch23.addConstraint([
    Sketcher.Constraint("Diameter", 0, Q("9.85 mm")),
    Sketcher.Constraint("DistanceX", -1, 1, 0, 3, Q("35 mm")),
    Sketcher.Constraint("DistanceY", -1, 1, 0, 3, Q("8 mm")),
])
pad12 = body7.newObject("PartDesign::Pad", "Pad011")
pad12.Profile = sketch23
pad12.Length = 27
pad12.Reversed = True

# Sketch on XZ plane
sketch24 = body7.newObject("Sketcher::SketchObject", "Sketch023")
sketch24.AttachmentSupport = (doc.getObject("XZ_Plane006"), [""])
sketch24.MapMode = "FlatFace"
sketch24.AttachmentOffset = App.Placement(V(0, 0, -35), App.Rotation())
add_polygon(sketch24, [(42, 12.925), (42, 12), (26, 12), (26, 12.925)])  # lines 0-3
sketch24.addGeometry(Part.LineSegment(V(42, 8, 0), V(26, 8, 0)), True)  # axis
sketch24.addConstraint([
    Sketcher.Constraint("Vertical", 0),
    Sketcher.Constraint("Horizontal", 1),
    Sketcher.Constraint("Vertical", 2),
    Sketcher.Constraint("Horizontal", 3),
    Sketcher.Constraint("Horizontal", 4),
    Sketcher.Constraint("Vertical", 3, 2, 4, 1),
    Sketcher.Constraint("Vertical", 2, 2, 4, 2),
    Sketcher.Constraint("DistanceX", 1, 2, 1, 1, Q("16 mm")),
    Sketcher.Constraint("DistanceX", -1, 1, 0, 2, Q("42 mm")),
    Sketcher.Constraint("DistanceY", -1, 1, 0, 2, Q("12 mm")),
    Sketcher.Constraint("DistanceY", -1, 1, 4, 1, Q("8 mm")),
    Sketcher.Constraint("DistanceY", 0, 2, 0, 1, Q("0.925 mm")),
])
groove6 = body7.newObject("PartDesign::Groove", "Groove005")
groove6.Profile = sketch24
groove6.ReferenceAxis = (sketch24, ["Axis0"])
groove6.Angle = 360
doc.recompute()

chamfer3 = body7.newObject("PartDesign::Chamfer", "Chamfer002")
chamfer3.Base = (groove6, edges_at(groove6, [(42, 35, 22), (57, 35, 22), (15, 35, 3.075)]))
chamfer3.Size = 1

doc.recompute()
